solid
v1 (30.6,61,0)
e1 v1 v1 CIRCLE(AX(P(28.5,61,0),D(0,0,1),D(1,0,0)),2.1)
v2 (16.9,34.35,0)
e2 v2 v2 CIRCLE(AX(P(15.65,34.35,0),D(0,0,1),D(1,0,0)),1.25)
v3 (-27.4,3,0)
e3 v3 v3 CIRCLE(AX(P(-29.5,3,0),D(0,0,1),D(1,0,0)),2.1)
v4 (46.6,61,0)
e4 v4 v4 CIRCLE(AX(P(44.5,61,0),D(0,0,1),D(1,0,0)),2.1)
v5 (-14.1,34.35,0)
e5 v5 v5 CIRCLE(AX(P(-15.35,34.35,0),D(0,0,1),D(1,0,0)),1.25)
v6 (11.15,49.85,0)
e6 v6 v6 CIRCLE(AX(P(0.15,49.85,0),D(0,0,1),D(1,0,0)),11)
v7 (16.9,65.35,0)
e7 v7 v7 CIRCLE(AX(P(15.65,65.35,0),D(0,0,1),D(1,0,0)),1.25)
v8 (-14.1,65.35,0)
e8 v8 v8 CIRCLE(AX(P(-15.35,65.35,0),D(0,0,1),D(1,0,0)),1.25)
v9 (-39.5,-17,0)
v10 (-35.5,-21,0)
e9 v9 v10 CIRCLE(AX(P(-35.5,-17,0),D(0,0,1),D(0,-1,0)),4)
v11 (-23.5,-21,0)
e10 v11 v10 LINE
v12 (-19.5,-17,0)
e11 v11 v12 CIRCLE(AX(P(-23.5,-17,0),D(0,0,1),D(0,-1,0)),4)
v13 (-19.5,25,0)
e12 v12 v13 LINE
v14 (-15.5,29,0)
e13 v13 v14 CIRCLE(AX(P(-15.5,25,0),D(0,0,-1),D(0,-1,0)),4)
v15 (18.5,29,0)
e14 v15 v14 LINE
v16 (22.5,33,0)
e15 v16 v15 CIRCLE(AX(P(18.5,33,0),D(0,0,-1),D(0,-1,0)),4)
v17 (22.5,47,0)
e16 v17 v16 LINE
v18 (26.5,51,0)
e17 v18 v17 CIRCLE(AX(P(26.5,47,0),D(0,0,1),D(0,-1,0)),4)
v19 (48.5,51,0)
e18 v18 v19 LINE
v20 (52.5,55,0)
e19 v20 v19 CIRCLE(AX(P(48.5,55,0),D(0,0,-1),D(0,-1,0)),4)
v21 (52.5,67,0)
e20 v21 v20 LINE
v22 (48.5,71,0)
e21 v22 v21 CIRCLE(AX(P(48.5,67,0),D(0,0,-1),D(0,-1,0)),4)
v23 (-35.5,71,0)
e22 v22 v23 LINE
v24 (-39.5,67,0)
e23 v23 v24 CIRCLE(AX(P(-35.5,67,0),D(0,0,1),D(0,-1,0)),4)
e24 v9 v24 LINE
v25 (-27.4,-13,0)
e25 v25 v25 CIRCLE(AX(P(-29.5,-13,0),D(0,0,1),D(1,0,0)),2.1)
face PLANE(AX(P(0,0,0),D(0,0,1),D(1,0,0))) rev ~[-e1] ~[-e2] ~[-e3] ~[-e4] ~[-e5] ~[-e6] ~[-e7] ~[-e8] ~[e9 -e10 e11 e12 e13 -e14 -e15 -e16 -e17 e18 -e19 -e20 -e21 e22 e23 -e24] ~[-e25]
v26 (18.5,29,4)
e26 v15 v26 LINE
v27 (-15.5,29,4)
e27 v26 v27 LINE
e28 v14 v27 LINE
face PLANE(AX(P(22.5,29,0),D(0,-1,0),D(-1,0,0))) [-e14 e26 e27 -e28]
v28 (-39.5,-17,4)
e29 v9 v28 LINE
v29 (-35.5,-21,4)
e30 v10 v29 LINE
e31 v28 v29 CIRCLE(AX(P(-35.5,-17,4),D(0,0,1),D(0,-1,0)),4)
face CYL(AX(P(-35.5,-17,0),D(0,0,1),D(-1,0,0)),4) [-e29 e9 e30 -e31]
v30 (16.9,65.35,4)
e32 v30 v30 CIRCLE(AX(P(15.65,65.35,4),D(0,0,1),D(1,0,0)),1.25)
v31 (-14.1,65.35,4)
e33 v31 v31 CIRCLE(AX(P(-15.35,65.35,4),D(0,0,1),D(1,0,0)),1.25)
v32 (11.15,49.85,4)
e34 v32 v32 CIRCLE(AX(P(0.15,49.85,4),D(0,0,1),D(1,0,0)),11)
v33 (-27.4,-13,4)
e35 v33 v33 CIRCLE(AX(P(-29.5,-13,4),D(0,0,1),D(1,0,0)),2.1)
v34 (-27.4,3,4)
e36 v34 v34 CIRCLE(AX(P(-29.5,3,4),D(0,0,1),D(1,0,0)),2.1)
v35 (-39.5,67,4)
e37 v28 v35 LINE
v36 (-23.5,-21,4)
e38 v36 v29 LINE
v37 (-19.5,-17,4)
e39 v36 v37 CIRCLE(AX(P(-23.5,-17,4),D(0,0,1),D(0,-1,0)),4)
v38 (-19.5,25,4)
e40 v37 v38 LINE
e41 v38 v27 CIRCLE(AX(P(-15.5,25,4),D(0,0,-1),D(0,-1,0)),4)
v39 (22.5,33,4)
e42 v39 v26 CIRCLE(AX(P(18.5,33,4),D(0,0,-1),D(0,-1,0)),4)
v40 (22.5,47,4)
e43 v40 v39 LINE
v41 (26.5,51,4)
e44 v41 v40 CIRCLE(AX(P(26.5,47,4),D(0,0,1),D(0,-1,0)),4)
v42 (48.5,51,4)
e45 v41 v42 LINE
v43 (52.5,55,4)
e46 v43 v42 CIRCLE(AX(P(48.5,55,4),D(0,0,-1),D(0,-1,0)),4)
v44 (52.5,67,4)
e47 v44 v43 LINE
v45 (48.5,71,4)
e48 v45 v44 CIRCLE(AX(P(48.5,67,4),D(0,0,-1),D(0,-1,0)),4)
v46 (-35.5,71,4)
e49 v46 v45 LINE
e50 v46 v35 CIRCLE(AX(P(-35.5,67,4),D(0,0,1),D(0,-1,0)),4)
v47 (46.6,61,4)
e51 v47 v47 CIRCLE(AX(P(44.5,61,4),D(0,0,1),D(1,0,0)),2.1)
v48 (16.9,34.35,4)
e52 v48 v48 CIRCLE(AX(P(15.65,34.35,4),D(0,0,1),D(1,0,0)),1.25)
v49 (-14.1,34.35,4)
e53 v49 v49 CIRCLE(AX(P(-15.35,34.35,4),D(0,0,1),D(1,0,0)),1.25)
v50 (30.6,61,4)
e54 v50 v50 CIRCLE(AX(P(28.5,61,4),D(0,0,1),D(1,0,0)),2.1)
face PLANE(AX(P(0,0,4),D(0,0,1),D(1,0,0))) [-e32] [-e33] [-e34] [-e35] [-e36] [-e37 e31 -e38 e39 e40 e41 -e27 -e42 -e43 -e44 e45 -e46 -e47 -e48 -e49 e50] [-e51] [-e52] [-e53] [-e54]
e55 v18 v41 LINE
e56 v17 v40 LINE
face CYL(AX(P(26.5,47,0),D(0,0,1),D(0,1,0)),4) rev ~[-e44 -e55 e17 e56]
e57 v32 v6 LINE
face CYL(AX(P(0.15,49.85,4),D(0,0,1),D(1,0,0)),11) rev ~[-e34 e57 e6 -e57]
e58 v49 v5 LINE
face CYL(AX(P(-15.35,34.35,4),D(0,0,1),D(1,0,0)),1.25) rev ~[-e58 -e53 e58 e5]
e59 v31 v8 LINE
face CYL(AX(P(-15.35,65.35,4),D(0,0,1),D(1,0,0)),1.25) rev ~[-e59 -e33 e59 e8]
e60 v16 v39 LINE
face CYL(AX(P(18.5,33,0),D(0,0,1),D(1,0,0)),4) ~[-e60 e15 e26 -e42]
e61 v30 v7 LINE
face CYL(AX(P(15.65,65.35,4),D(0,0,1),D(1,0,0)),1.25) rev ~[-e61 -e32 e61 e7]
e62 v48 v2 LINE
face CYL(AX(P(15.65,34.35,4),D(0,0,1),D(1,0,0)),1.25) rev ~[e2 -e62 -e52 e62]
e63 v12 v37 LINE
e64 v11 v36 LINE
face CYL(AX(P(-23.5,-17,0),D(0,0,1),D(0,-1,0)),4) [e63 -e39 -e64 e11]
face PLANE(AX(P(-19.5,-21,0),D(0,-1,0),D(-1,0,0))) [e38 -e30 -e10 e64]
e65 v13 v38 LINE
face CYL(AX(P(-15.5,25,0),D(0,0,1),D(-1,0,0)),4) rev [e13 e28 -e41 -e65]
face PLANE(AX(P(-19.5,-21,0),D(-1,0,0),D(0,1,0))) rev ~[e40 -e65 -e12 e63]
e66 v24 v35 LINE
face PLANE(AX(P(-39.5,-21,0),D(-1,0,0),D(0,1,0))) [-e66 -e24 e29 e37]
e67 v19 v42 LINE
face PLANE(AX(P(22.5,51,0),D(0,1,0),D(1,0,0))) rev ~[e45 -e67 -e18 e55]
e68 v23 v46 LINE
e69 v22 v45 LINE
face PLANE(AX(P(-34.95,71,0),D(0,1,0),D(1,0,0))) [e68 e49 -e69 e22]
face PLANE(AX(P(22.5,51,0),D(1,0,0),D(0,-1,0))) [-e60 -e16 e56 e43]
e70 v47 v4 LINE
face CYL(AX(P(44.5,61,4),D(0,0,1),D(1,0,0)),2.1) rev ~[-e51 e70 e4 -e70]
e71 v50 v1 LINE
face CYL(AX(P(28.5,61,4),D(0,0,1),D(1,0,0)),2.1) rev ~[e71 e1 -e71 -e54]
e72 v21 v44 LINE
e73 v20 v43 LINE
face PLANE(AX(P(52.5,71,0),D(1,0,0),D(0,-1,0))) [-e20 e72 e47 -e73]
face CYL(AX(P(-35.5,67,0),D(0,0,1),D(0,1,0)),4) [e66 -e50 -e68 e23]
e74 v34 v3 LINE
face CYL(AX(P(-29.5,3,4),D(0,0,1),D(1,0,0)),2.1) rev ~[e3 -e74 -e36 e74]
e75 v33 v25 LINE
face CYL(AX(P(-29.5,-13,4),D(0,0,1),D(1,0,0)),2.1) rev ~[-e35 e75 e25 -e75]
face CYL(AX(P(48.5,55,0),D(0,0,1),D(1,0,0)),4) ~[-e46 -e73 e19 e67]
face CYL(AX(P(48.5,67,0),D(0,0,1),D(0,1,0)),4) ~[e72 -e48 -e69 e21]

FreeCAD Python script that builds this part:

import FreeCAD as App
import Part
import Sketcher
from FreeCAD import Vector
Q = App.Units.Quantity


def edges_at(feature, points):
    """Names of the edges that pass closest to the given points."""
    edges = feature.Shape.Edges
    near = lambda p: min(range(len(edges)), key=lambda i: edges[i].distToShape(Part.Vertex(*p))[0])
    return sorted({f"Edge{near(p) + 1}" for p in points})


def add_polygon(sketch, points):
    """Adds a closed chain of lines whose ends are joined by coincident constraints."""
    first, n = sketch.GeometryCount, len(points)
    for a, b in zip(points, points[1:] + points[:1]):
        sketch.addGeometry(Part.LineSegment(App.Vector(*a, 0), App.Vector(*b, 0)), False)
    for i in range(n):
        sketch.addConstraint(Sketcher.Constraint("Coincident", first + i, 2, first + (i + 1) % n, 1))

doc = App.newDocument("Part")
body = doc.addObject("PartDesign::Body", "Body")

sketch1 = body.newObject("Sketcher::SketchObject", "Sketch")
sketch1.AttachmentSupport = (doc.getObject("XY_Plane"), [""])
sketch1.MapMode = "FlatFace"
add_polygon(sketch1, [(-39.5, 71), (-39.5, -21), (-19.5, -21), (-19.5, 29), (22.5, 29), (22.5, 51), (52.5, 51), (52.5, 71)])
sketch1.addConstraint([
    Sketcher.Constraint("Vertical", 0),
    Sketcher.Constraint("Horizontal", 1),
    Sketcher.Constraint("Vertical", 2),
    Sketcher.Constraint("Horizontal", 3),
    Sketcher.Constraint("Vertical", 4),
    Sketcher.Constraint("Horizontal", 5),
    Sketcher.Constraint("Vertical", 6),
    Sketcher.Constraint("Horizontal", 7),
    Sketcher.Constraint("Equal", 7, 0),
    Sketcher.Constraint("Equal", 1, 6),
    Sketcher.Constraint("DistanceX", 1, 1, 1, 2, Q("20 mm")),
    Sketcher.Constraint("DistanceX", 3, 1, 3, 2, Q("42 mm")),
    Sketcher.Constraint("DistanceX", 5, 1, 5, 2, Q("30 mm")),
    Sketcher.Constraint("DistanceY", 3, 2, 6, 2, Q("42 mm")),
    Sketcher.Constraint("DistanceY", 0, 2, -1, 1, Q("21 mm")),
    Sketcher.Constraint("DistanceX", 0, 2, -1, 1, Q("39.5 mm")),
])
pad1 = body.newObject("PartDesign::Pad", "Pad")
pad1.Profile = sketch1
pad1.Length = 4

sketch2 = body.newObject("Sketcher::SketchObject", "Sketch001")
sketch2.AttachmentSupport = (doc.getObject("XY_Plane"), [""])
sketch2.MapMode = "FlatFace"
sketch2.AttachmentOffset = App.Placement(Vector(0, 0, 4), App.Rotation())
sketch2.addGeometry([
    Part.Circle(Vector(0.15, 49.85, 0), Vector(0, 0, 1), 11),
    Part.Circle(Vector(44.5, 61, 0), Vector(0, 0, 1), 2.1),
    Part.Circle(Vector(28.5, 61, 0), Vector(0, 0, 1), 2.1),
    Part.Circle(Vector(-15.35, 34.35, 0), Vector(0, 0, 1), 1.25),
    Part.Circle(Vector(15.65, 34.35, 0), Vector(0, 0, 1), 1.25),
    Part.Circle(Vector(15.65, 65.35, 0), Vector(0, 0, 1), 1.25),
    Part.Circle(Vector(-15.35, 65.35, 0), Vector(0, 0, 1), 1.25),
    Part.Circle(Vector(-29.5, -13, 0), Vector(0, 0, 1), 2.1),
    Part.Circle(Vector(-29.5, 3, 0), Vector(0, 0, 1), 2.1),
], False)
sketch2.addConstraint([
    Sketcher.Constraint("Equal", 1, 2),
    Sketcher.Constraint("Equal", 3, 4),
    Sketcher.Constraint("Equal", 4, 5),
    Sketcher.Constraint("Equal", 5, 6),
    Sketcher.Constraint("Equal", 2, 7),
    Sketcher.Constraint("Equal", 7, 8),
    Sketcher.Constraint("Horizontal", 1, 3, 2, 3),
    Sketcher.Constraint("Horizontal", 3, 3, 4, 3),
    Sketcher.Constraint("Horizontal", 5, 3, 6, 3),
    Sketcher.Constraint("Vertical", 4, 3, 5, 3),
    Sketcher.Constraint("Vertical", 3, 3, 6, 3),
    Sketcher.Constraint("Vertical", 7, 3, 8, 3),
    Sketcher.Constraint("Diameter", 1, Q("4.2 mm")),
    Sketcher.Constraint("Diameter", 0, Q("22 mm")),
    Sketcher.Constraint("DistanceX", 2, 3, 1, 3, Q("16 mm")),
    Sketcher.Constraint("DistanceY", 7, 3, 8, 3, Q("16 mm")),
    Sketcher.Constraint("Diameter", 3, Q("2.5 mm")),
    Sketcher.Constraint("DistanceY", -1, 1, 1, 3, Q("61 mm")),
    Sketcher.Constraint("DistanceY", 7, 3, -1, 1, Q("13 mm")),
    Sketcher.Constraint("DistanceX", 3, 3, 4, 3, Q("31 mm")),
    Sketcher.Constraint("DistanceY", 4, 3, 5, 3, Q("31 mm")),
    Sketcher.Constraint("DistanceX", -1, 1, 1, 3, Q("44.5 mm")),
    Sketcher.Constraint("DistanceX", 7, 3, -1, 1, Q("29.5 mm")),
    Sketcher.Constraint("DistanceX", 3, 3, 0, 3, Q("15.5 mm")),
    Sketcher.Constraint("DistanceY", 3, 3, 0, 3, Q("15.5 mm")),
    Sketcher.Constraint("DistanceX", -1, 1, 0, 3, Q("0.15 mm")),
    Sketcher.Constraint("DistanceY", -1, 1, 0, 3, Q("49.85 mm")),
])
pocket1 = body.newObject("PartDesign::Pocket", "Pocket")
pocket1.Profile = sketch2
pocket1.Length = 4
doc.recompute()

fillet = body.newObject("PartDesign::Fillet", "Fillet")
fillet.Base = (pocket1, edges_at(pocket1, [
    (-39.5, -21, 2),
    (-19.5, -21, 2),
    (-19.5, 29, 2),
    (22.5, 29, 2),
    (22.5, 51, 2),
    (52.5, 51, 2),
    (52.5, 71, 2),
    (-39.5, 71, 2),
]))
fillet.Radius = 4

doc.recompute()
